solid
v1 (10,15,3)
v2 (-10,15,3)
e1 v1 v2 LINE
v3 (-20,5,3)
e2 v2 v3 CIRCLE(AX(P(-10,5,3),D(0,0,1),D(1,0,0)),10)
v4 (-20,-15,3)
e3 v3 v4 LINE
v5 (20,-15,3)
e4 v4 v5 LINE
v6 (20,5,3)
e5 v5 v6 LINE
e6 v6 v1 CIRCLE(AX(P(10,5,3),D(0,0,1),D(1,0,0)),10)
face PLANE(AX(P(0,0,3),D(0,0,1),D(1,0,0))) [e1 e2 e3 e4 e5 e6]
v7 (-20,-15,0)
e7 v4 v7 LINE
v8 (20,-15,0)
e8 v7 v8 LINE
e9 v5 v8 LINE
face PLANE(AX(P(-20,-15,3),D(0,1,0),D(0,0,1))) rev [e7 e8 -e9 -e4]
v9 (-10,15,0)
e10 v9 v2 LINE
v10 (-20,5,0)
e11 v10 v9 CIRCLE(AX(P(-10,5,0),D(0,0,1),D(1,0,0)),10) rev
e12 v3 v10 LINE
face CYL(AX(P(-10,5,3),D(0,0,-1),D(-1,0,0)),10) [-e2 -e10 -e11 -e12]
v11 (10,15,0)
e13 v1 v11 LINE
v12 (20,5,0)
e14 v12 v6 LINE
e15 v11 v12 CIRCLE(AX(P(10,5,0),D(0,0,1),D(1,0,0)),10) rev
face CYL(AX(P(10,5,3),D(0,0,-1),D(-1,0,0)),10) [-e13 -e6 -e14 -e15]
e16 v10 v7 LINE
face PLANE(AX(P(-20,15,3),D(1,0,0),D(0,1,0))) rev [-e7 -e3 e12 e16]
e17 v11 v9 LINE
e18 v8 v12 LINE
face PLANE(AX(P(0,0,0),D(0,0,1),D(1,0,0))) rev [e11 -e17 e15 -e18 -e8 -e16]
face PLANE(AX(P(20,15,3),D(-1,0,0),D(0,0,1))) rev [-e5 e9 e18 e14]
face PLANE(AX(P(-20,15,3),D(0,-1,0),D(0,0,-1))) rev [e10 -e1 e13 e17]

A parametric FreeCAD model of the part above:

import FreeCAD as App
import Part
import Sketcher


def edges_at(feature, points):
    """Names of the edges that pass closest to the given points."""
    edges = feature.Shape.Edges
    near = lambda p: min(range(len(edges)), key=lambda i: edges[i].distToShape(Part.Vertex(*p))[0])
    return sorted({f"Edge{near(p) + 1}" for p in points})

doc = App.newDocument("Part")
params = doc.addObject("Spreadsheet::Sheet", "Params")
for row, (alias, value) in enumerate([
    ("sketch1_width", "40 mm"),
    ("sketch1_height", "30 mm"),
    ("pad1_length", "3 mm"),
    ("fillet_radius", "10 mm"),
], start=1):
    params.set(f"A{row}", alias)
    params.set(f"B{row}", "=" + value)
    params.setAlias(f"B{row}", alias)

body = doc.addObject("PartDesign::Body", "Body")

# Sketch on XY plane
sketch1 = body.newObject("Sketcher::SketchObject", "Sketch")
sketch1.AttachmentSupport = (doc.getObject("XY_Plane"), [""])
sketch1.MapMode = "FlatFace"
sketch1.addGeometry(Part.LineSegment(App.Vector(-20, 15, 0), App.Vector(-20, -15, 0)), False)
sketch1.addGeometry(Part.LineSegment(App.Vector(-20, -15, 0), App.Vector(20, -15, 0)), False)
sketch1.addGeometry(Part.LineSegment(App.Vector(20, -15, 0), App.Vector(20, 15, 0)), False)
sketch1.addGeometry(Part.LineSegment(App.Vector(20, 15, 0), App.Vector(-20, 15, 0)), False)
sketch1.addConstraint(Sketcher.Constraint("Coincident", 0, 2, 1, 1))
sketch1.addConstraint(Sketcher.Constraint("Coincident", 1, 2, 2, 1))
sketch1.addConstraint(Sketcher.Constraint("Coincident", 2, 2, 3, 1))
sketch1.addConstraint(Sketcher.Constraint("Coincident", 3, 2, 0, 1))
sketch1.addConstraint(Sketcher.Constraint("Vertical", 0))
sketch1.addConstraint(Sketcher.Constraint("Horizontal", 1))
sketch1.addConstraint(Sketcher.Constraint("Vertical", 2))
sketch1.addConstraint(Sketcher.Constraint("Horizontal", 3))
sketch1.addConstraint(Sketcher.Constraint("Symmetric", 0, 2, 2, 2, -1, 1))
sketch1.addConstraint(Sketcher.Constraint("DistanceX", 1, 1, 1, 2, 40.0))
sketch1.addConstraint(Sketcher.Constraint("DistanceY", 0, 2, 0, 1, 30.0))
sketch1.setExpression("Constraints[9]", "Params.sketch1_width")
sketch1.setExpression("Constraints[10]", "Params.sketch1_height")
pad1 = body.newObject("PartDesign::Pad", "Pad")
pad1.Profile = sketch1
pad1.setExpression("Length", "Params.pad1_length")
doc.recompute()

fillet = body.newObject("PartDesign::Fillet", "Fillet")
fillet.Base = (pad1, edges_at(pad1, [(-20, 15, 1.5), (20, 15, 1.5)]))
fillet.setExpression("Radius", "Params.fillet_radius")

doc.recompute()
